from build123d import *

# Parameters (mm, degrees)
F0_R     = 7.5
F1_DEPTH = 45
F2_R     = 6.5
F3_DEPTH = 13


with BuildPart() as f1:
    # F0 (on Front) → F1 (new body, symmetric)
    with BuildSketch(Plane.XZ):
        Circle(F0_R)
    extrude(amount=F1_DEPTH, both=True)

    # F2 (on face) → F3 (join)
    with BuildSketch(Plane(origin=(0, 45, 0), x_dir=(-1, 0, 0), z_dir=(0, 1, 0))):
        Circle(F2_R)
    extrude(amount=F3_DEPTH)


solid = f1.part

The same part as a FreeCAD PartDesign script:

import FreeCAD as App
import Part
import Sketcher

doc = App.newDocument("Part")
body = doc.addObject("PartDesign::Body", "Body")

sketch1 = body.newObject("Sketcher::SketchObject", "Sketch")
sketch1.AttachmentSupport = (doc.getObject("XZ_Plane"), [""])
sketch1.MapMode = "FlatFace"
sketch1.addGeometry(Part.Circle(App.Vector(0, 0, 0), App.Vector(0, 0, 1), 8), False)
sketch1.addConstraint(Sketcher.Constraint("Coincident", 0, 3, -1, 1))
sketch1.addConstraint(Sketcher.Constraint("Diameter", 0, 15.0))
pad1 = body.newObject("PartDesign::Pad", "Pad")
pad1.Profile = sketch1
pad1.Length = 90
pad1.Midplane = True

sketch2 = body.newObject("Sketcher::SketchObject", "Sketch001")
sketch2.AttachmentSupport = (doc.getObject("XZ_Plane"), [""])
sketch2.MapMode = "FlatFace"
sketch2.AttachmentOffset = App.Placement(App.Vector(0, 0, -45), App.Rotation())
sketch2.addGeometry(Part.Circle(App.Vector(0, 0, 0), App.Vector(0, 0, 1), 6), False)
sketch2.addConstraint(Sketcher.Constraint("Coincident", 0, 3, -1, 1))
sketch2.addConstraint(Sketcher.Constraint("Diameter", 0, 13.0))
pad2 = body.newObject("PartDesign::Pad", "Pad001")
pad2.Profile = sketch2
pad2.Length = 13
pad2.Reversed = True

doc.recompute()
